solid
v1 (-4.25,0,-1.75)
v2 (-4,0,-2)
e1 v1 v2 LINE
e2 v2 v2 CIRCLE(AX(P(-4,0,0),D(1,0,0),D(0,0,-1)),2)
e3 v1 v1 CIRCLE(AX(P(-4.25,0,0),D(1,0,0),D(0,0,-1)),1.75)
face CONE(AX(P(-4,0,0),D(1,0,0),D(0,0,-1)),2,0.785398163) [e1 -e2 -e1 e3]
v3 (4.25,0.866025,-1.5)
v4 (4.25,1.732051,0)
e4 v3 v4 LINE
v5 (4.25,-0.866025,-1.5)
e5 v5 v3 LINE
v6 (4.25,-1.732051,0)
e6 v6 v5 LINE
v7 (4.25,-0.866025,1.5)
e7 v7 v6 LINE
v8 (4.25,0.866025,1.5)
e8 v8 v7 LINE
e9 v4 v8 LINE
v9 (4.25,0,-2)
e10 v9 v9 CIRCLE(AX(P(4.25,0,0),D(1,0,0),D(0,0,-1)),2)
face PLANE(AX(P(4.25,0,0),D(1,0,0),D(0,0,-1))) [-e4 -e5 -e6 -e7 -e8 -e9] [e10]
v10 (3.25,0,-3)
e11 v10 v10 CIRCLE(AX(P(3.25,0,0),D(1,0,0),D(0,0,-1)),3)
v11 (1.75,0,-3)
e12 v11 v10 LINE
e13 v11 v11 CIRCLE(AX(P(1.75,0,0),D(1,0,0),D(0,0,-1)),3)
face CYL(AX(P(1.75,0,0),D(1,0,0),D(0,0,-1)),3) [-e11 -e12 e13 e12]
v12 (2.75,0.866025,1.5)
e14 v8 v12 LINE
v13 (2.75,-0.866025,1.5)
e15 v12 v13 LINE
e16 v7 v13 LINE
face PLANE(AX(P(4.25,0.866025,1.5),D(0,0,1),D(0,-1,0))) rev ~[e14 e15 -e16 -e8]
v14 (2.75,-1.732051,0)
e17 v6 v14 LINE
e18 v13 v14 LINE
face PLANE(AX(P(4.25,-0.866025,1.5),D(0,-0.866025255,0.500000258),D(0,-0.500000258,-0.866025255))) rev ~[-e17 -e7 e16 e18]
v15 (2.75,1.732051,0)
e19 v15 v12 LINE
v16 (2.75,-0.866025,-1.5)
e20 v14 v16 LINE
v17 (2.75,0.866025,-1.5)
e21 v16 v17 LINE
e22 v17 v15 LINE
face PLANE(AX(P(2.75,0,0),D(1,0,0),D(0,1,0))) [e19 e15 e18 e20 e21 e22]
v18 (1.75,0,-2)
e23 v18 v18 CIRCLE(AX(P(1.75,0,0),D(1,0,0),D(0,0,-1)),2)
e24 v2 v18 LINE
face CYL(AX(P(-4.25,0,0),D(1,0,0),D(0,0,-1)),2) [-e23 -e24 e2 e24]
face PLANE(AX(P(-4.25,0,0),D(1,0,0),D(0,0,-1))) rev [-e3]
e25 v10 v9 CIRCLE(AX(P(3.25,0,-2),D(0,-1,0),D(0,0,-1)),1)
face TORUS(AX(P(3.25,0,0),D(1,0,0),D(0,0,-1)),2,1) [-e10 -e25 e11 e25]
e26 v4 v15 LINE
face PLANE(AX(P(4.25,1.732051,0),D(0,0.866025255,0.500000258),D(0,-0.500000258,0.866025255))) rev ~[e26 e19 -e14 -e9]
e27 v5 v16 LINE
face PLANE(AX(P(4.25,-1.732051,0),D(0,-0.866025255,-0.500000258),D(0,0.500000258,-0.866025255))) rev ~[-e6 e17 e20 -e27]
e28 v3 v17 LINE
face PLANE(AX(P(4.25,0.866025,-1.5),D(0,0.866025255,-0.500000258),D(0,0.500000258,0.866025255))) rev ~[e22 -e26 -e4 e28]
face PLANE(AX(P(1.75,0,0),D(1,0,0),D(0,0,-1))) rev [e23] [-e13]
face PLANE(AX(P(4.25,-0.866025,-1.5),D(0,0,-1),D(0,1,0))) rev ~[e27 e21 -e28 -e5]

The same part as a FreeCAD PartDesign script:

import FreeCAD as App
import Part
import Sketcher

V = App.Vector
Q = App.Units.Quantity


def edges_at(feature, points):
    """Names of the edges that pass closest to the given points."""
    edges = feature.Shape.Edges
    near = lambda p: min(range(len(edges)), key=lambda i: edges[i].distToShape(Part.Vertex(*p))[0])
    return sorted({f"Edge{near(p) + 1}" for p in points})

doc = App.newDocument("Part")
body = doc.addObject("PartDesign::Body", "Body")

sketch1 = body.newObject("Sketcher::SketchObject", "Sketch")
sketch1.AttachmentSupport = (doc.getObject("XZ_Plane"), [""])
sketch1.MapMode = "FlatFace"
sketch1.addGeometry(Part.LineSegment(V(4.2, 0, 0), V(-4.2, 0, 0)), False)
sketch1.addGeometry(Part.LineSegment(V(-4.2, 0, 0), V(-4.2, -2, 0)), False)
sketch1.addGeometry(Part.LineSegment(V(-4.2, -2, 0), V(1.8, -2, 0)), False)
sketch1.addGeometry(Part.LineSegment(V(1.8, -2, 0), V(1.8, -3, 0)), False)
sketch1.addGeometry(Part.LineSegment(V(1.8, -3, 0), V(4.2, -3, 0)), False)
sketch1.addGeometry(Part.LineSegment(V(4.2, -3, 0), V(4.2, 0, 0)), False)
sketch1.addConstraint(Sketcher.Constraint("Coincident", 0, 2, 1, 1))
sketch1.addConstraint(Sketcher.Constraint("Coincident", 1, 2, 2, 1))
sketch1.addConstraint(Sketcher.Constraint("Coincident", 2, 2, 3, 1))
sketch1.addConstraint(Sketcher.Constraint("Coincident", 3, 2, 4, 1))
sketch1.addConstraint(Sketcher.Constraint("Coincident", 4, 2, 5, 1))
sketch1.addConstraint(Sketcher.Constraint("Coincident", 5, 2, 0, 1))
sketch1.addConstraint(Sketcher.Constraint("Horizontal", 0))
sketch1.addConstraint(Sketcher.Constraint("Vertical", 1))
sketch1.addConstraint(Sketcher.Constraint("Horizontal", 2))
sketch1.addConstraint(Sketcher.Constraint("Vertical", 3))
sketch1.addConstraint(Sketcher.Constraint("Horizontal", 4))
sketch1.addConstraint(Sketcher.Constraint("Vertical", 5))
sketch1.addConstraint(Sketcher.Constraint("Symmetric", 0, 2, 5, 2, -1, 1))
sketch1.addConstraint(Sketcher.Constraint("DistanceX", 2, 1, 2, 2, Q("6 mm")))
sketch1.addConstraint(Sketcher.Constraint("DistanceY", 1, 2, 1, 1, Q("2 mm")))
sketch1.addConstraint(Sketcher.Constraint("DistanceY", 3, 2, 3, 1, Q("1 mm")))
sketch1.addConstraint(Sketcher.Constraint("DistanceX", 0, 2, 0, 1, Q("8.5 mm")))
revolution = body.newObject("PartDesign::Revolution", "Revolution")
revolution.Profile = sketch1
revolution.ReferenceAxis = (sketch1, ["H_Axis"])
revolution.Angle = 360
doc.recompute()

chamfer = body.newObject("PartDesign::Chamfer", "Chamfer")
chamfer.Base = (revolution, edges_at(revolution, [(-4.25, 0, 2)]))
chamfer.ChamferType = "Two distances"
chamfer.Size = 0.25
chamfer.Size2 = 0.25
doc.recompute()

fillet = body.newObject("PartDesign::Fillet", "Fillet")
fillet.Base = (chamfer, edges_at(chamfer, [(4.25, 0, 3)]))
fillet.Radius = 1

sketch2 = body.newObject("Sketcher::SketchObject", "Sketch001")
sketch2.AttachmentSupport = (doc.getObject("YZ_Plane"), [""])
sketch2.MapMode = "FlatFace"
sketch2.AttachmentOffset = App.Placement(V(0, 0, 4.25), App.Rotation())
sketch2.addGeometry(Part.LineSegment(V(0.9, 1.5, 0), V(-0.9, 1.5, 0)), False)
sketch2.addGeometry(Part.LineSegment(V(-0.9, 1.5, 0), V(-1.7, 0, 0)), False)
sketch2.addGeometry(Part.LineSegment(V(-1.7, 0, 0), V(-0.9, -1.5, 0)), False)
sketch2.addGeometry(Part.LineSegment(V(-0.9, -1.5, 0), V(0.9, -1.5, 0)), False)
sketch2.addGeometry(Part.LineSegment(V(0.9, -1.5, 0), V(1.7, 0, 0)), False)
sketch2.addGeometry(Part.LineSegment(V(1.7, 0, 0), V(0.9, 1.5, 0)), False)
sketch2.addConstraint(Sketcher.Constraint("Coincident", 0, 2, 1, 1))
sketch2.addConstraint(Sketcher.Constraint("Coincident", 1, 2, 2, 1))
sketch2.addConstraint(Sketcher.Constraint("Coincident", 2, 2, 3, 1))
sketch2.addConstraint(Sketcher.Constraint("Coincident", 3, 2, 4, 1))
sketch2.addConstraint(Sketcher.Constraint("Coincident", 4, 2, 5, 1))
sketch2.addConstraint(Sketcher.Constraint("Coincident", 5, 2, 0, 1))
sketch2.addConstraint(Sketcher.Constraint("Horizontal", 0))
sketch2.addConstraint(Sketcher.Constraint("Horizontal", 3))
sketch2.addConstraint(Sketcher.Constraint("Symmetric", 0, 2, 3, 2, -1, 1))
sketch2.addConstraint(Sketcher.Constraint("Symmetric", 1, 2, 4, 2, -1, 1))
sketch2.addConstraint(Sketcher.Constraint("PointOnObject", 1, 2, -1))
sketch2.addConstraint(Sketcher.Constraint("Parallel", 2, 5))
sketch2.addConstraint(Sketcher.Constraint("Vertical", 0, 2, 2, 2))
sketch2.addConstraint(Sketcher.Constraint("Angle", 1, Q("-120.000017 deg")))
sketch2.addConstraint(Sketcher.Constraint("DistanceY", 2, 2, 0, 2, Q("3 mm")))
sketch2.addConstraint(Sketcher.Constraint("DistanceX", 0, 2, 0, 1, Q("1.73205 mm")))
pocket1 = body.newObject("PartDesign::Pocket", "Pocket")
pocket1.Profile = sketch2
pocket1.Length = 1.5

doc.recompute()
